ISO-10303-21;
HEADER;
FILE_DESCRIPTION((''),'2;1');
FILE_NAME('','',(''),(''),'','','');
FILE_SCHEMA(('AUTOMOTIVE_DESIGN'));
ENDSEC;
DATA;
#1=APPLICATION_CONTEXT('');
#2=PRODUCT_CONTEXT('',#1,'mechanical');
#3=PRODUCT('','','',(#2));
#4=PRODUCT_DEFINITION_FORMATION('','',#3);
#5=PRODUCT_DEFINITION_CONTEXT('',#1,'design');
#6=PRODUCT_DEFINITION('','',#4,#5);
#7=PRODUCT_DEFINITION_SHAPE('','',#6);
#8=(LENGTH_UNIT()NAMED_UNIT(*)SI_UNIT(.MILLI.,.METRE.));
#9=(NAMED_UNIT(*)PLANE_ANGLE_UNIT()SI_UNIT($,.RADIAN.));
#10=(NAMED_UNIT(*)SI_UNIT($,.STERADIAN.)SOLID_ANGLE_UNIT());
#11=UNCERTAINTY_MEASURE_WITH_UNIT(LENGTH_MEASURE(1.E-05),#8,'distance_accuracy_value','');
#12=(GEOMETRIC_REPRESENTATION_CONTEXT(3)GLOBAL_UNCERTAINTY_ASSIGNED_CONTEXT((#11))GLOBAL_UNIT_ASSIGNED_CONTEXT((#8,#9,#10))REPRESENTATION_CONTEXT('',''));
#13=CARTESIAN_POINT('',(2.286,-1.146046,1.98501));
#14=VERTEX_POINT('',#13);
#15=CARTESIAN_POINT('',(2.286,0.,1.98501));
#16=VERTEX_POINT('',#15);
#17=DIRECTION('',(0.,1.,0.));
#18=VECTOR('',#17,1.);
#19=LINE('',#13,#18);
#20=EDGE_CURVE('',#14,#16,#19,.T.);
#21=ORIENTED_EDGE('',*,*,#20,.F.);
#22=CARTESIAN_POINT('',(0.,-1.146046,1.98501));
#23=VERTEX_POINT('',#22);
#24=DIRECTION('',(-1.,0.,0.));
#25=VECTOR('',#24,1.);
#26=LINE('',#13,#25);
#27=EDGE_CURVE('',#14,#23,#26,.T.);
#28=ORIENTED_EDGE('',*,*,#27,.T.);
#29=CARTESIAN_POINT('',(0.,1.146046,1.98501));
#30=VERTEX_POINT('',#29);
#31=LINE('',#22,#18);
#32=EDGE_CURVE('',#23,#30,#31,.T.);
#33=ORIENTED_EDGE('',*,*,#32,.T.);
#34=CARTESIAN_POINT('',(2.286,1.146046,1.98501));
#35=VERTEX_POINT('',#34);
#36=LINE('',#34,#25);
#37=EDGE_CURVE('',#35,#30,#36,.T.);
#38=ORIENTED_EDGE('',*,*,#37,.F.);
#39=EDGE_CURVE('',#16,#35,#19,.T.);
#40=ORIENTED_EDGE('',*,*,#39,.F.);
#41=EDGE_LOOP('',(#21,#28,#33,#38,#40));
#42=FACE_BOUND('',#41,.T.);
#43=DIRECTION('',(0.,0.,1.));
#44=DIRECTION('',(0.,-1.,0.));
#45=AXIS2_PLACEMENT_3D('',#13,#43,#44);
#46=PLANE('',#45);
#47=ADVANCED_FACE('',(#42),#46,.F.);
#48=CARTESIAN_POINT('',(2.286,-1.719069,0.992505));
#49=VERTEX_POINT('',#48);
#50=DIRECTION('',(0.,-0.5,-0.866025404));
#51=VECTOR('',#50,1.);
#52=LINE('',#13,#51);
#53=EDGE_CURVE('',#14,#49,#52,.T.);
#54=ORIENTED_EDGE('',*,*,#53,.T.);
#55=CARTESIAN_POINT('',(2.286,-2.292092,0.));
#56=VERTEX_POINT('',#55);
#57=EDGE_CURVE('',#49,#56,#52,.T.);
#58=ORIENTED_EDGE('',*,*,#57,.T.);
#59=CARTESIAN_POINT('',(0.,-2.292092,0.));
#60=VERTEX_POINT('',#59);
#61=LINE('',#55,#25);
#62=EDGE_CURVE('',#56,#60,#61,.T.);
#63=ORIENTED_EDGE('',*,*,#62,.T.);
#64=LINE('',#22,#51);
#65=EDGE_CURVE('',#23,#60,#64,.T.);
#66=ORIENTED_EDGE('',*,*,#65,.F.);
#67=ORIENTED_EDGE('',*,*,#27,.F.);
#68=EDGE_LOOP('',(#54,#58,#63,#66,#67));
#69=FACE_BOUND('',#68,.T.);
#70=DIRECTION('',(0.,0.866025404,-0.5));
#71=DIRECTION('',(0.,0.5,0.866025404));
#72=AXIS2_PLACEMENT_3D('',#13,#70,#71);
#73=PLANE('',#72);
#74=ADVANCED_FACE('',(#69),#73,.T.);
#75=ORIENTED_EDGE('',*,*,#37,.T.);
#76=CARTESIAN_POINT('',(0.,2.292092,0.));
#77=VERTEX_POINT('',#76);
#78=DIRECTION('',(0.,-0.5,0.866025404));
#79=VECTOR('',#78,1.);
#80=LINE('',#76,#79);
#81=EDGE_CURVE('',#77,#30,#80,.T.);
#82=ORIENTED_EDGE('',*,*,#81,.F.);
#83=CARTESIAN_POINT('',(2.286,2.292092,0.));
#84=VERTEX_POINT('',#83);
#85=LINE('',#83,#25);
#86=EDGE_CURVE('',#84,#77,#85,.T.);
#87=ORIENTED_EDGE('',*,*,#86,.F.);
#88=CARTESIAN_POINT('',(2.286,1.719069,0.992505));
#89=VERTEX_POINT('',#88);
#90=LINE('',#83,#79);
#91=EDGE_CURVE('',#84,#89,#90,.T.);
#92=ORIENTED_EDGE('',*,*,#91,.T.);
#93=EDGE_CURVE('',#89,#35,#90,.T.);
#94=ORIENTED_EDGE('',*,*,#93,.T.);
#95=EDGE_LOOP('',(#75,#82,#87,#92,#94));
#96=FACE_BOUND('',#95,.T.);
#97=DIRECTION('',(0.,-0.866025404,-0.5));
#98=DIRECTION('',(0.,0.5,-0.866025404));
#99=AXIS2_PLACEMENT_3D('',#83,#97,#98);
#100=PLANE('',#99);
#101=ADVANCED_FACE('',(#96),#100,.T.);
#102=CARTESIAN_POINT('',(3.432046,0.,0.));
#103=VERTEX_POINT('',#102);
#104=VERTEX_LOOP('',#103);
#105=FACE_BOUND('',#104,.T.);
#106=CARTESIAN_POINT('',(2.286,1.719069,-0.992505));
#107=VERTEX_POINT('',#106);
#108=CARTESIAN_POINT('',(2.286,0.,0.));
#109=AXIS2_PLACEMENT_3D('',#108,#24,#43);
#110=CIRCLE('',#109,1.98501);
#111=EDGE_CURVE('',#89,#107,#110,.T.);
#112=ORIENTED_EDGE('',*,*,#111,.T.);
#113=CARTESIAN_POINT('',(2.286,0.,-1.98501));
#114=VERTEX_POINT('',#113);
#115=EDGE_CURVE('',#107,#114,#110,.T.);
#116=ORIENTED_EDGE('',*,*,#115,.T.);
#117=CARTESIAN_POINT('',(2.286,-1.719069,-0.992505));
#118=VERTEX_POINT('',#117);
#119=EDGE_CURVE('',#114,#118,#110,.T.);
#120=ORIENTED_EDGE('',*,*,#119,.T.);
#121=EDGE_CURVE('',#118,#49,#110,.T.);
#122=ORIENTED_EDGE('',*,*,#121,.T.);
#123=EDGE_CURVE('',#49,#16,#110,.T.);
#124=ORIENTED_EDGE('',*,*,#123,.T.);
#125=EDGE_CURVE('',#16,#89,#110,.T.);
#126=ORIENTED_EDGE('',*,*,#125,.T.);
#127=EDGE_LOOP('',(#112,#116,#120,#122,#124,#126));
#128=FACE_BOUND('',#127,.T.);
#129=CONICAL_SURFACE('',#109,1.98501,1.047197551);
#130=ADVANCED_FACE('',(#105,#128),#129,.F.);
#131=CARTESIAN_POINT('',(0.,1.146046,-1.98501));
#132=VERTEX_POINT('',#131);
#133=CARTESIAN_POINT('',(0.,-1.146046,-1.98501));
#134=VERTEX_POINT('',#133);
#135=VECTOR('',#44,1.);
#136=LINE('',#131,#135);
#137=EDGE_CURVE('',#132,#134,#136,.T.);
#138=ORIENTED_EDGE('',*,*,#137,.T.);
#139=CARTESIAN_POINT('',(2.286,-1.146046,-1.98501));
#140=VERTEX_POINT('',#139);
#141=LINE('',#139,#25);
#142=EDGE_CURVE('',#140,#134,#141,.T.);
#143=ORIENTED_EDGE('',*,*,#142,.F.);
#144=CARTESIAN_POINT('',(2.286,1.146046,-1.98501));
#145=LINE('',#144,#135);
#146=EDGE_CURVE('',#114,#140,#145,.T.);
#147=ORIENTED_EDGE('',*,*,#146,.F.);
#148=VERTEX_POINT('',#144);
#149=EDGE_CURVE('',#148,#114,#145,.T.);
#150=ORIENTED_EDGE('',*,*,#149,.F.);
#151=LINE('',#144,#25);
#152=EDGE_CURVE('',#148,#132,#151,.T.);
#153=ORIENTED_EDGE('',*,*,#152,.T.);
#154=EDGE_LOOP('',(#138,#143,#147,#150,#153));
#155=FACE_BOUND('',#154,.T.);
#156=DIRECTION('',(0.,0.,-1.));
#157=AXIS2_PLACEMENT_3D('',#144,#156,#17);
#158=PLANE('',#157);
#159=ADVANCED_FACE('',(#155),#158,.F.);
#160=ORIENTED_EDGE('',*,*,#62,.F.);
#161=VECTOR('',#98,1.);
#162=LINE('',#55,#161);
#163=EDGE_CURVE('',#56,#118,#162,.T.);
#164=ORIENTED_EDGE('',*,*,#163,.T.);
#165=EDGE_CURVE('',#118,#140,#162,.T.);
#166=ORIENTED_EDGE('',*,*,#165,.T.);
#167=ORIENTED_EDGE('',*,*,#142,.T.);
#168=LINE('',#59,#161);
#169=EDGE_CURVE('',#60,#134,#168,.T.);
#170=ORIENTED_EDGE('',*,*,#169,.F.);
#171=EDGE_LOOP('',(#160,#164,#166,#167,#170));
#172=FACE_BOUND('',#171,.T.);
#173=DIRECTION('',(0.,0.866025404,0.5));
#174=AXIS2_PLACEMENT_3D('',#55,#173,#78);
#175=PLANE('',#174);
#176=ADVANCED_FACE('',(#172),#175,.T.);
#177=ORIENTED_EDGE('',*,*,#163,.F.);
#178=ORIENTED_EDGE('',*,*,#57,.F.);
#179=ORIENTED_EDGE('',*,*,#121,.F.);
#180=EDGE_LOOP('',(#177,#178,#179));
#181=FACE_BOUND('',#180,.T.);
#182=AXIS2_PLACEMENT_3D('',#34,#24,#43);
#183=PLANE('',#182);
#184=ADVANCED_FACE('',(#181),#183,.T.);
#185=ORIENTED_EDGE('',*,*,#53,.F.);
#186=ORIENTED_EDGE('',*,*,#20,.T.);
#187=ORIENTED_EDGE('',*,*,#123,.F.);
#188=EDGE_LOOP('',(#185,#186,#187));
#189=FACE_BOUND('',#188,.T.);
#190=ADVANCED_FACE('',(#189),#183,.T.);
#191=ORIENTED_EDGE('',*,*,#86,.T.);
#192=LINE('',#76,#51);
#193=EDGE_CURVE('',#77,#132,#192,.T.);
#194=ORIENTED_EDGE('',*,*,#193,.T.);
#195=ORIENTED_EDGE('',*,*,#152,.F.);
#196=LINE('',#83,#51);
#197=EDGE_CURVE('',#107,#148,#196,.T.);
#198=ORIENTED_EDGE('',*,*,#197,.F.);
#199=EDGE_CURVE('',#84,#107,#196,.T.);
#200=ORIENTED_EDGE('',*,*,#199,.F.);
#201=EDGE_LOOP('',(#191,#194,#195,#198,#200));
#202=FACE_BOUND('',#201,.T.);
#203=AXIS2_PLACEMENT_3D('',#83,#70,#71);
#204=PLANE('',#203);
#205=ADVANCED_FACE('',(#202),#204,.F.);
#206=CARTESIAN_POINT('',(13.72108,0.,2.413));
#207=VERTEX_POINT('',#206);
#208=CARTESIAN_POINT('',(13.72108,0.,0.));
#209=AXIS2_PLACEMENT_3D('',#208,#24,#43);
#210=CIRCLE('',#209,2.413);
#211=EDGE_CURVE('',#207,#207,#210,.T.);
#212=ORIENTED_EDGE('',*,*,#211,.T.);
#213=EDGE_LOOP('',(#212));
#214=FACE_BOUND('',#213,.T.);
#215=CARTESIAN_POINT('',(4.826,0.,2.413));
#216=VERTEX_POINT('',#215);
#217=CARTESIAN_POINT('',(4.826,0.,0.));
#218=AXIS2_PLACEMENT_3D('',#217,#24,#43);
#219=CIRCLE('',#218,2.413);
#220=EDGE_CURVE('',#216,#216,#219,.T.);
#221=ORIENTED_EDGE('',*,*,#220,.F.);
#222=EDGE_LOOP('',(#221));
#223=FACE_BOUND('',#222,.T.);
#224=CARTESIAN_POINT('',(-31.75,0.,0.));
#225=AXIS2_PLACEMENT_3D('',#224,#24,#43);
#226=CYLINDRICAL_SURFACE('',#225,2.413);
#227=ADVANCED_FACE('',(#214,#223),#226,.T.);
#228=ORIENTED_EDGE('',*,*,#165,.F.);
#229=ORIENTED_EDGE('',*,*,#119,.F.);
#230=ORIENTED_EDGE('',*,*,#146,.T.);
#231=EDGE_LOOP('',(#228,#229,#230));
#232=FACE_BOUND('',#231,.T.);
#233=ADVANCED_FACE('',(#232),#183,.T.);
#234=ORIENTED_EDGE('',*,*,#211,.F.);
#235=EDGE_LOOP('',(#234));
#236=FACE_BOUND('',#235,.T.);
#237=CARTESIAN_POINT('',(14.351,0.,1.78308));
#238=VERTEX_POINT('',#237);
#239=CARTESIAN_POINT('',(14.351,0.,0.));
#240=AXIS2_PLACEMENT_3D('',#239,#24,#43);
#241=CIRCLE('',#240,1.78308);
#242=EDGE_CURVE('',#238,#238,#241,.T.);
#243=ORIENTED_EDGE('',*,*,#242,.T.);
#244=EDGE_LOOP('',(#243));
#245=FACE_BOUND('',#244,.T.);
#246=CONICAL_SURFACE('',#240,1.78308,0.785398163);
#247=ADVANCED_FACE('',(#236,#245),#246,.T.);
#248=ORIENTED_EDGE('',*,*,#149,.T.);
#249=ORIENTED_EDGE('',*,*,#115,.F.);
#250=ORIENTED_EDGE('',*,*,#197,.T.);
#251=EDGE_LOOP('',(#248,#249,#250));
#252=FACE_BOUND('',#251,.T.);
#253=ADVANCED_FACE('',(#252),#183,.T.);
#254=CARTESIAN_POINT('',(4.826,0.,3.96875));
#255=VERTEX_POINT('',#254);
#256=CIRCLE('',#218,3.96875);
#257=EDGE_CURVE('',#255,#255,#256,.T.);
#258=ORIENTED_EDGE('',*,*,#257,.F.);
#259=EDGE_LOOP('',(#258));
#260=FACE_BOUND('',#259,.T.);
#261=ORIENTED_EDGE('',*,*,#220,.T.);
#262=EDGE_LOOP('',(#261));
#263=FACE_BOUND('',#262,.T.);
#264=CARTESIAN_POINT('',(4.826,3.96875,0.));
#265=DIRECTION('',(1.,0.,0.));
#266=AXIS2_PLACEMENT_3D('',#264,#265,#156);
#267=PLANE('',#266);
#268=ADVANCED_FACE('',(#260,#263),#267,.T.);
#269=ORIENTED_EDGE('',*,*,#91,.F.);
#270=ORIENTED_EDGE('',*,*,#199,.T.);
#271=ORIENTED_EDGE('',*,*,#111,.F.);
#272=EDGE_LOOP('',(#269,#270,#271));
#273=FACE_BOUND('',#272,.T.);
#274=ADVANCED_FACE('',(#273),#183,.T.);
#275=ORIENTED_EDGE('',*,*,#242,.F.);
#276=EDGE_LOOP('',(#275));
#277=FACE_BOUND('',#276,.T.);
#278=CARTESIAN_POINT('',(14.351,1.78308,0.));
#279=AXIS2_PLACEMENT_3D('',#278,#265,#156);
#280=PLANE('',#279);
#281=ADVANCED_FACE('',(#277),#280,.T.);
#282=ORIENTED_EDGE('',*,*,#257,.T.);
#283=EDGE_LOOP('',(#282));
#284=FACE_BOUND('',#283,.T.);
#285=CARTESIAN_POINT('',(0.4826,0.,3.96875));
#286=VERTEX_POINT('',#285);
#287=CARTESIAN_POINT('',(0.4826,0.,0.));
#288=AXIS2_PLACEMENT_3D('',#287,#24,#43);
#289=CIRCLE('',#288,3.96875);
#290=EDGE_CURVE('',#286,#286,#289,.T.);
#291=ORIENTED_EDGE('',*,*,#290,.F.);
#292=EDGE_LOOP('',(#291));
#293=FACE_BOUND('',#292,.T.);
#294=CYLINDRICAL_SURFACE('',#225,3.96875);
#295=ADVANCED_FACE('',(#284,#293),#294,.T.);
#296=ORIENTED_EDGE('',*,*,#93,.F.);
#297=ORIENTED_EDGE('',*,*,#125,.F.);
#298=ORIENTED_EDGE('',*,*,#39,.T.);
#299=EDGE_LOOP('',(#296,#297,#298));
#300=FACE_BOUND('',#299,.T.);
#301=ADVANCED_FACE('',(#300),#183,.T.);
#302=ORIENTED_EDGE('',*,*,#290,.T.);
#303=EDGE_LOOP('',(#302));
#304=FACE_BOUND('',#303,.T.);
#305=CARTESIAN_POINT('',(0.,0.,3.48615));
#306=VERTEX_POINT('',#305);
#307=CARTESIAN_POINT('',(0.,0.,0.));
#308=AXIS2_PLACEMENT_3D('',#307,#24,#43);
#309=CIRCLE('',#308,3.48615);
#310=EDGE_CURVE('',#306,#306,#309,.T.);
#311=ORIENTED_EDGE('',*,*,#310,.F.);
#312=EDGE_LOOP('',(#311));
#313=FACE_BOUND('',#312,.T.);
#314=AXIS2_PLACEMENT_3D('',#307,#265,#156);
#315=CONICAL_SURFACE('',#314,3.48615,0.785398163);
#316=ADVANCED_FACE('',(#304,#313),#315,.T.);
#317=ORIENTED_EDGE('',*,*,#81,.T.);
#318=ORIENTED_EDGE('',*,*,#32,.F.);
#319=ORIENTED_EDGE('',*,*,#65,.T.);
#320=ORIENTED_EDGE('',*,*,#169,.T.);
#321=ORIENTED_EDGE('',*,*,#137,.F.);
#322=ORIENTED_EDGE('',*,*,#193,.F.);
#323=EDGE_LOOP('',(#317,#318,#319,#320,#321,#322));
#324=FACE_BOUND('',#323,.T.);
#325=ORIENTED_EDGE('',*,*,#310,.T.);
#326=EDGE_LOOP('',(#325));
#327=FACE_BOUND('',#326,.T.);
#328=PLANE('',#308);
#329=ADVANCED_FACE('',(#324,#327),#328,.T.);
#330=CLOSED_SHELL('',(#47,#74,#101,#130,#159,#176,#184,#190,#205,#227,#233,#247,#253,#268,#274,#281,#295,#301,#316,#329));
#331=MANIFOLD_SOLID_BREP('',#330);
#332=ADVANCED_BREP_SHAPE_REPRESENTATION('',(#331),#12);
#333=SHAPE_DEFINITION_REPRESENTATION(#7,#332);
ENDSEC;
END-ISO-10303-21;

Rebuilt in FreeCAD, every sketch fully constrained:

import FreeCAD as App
import Part
import Sketcher
from FreeCAD import Vector
Q = App.Units.Quantity


def add_polygon(sketch, points):
    """Adds a closed chain of lines whose ends are joined by coincident constraints."""
    first, n = sketch.GeometryCount, len(points)
    for a, b in zip(points, points[1:] + points[:1]):
        sketch.addGeometry(Part.LineSegment(App.Vector(*a, 0), App.Vector(*b, 0)), False)
    for i in range(n):
        sketch.addConstraint(Sketcher.Constraint("Coincident", first + i, 2, first + (i + 1) % n, 1))

doc = App.newDocument("Part")
params = doc.addObject("Spreadsheet::Sheet", "Params")
for row, (alias, value) in enumerate([
    ("sketch1_width", "0.565 in"),
    ("sketch1_width2", "0.171 in"),
    ("revolution_angle", "360 deg"),
    ("sketch2_width", "0.09 in"),
    ("groove_angle", "360 deg"),
    ("pocket1_length", "0.09 in"),
], start=1):
    params.set(f"A{row}", alias)
    params.set(f"B{row}", "=" + value)
    params.setAlias(f"B{row}", alias)

body = doc.addObject("PartDesign::Body", "Body")

sketch1 = doc.addObject("Sketcher::SketchObject", "Sketch")
body.addObject(sketch1)
sketch1.AttachmentSupport = (doc.XY_Plane, [""])
sketch1.MapMode = "FlatFace"
add_polygon(sketch1, [(0, 3.5), (0, 0), (14.4, 0), (14.4, 1.8), (13.7, 2.4), (4.8, 2.4), (4.8, 4), (0.5, 4)])
sketch1.addConstraint(Sketcher.Constraint("Vertical", 0))
sketch1.addConstraint(Sketcher.Constraint("Horizontal", 1))
sketch1.addConstraint(Sketcher.Constraint("Vertical", 2))
sketch1.addConstraint(Sketcher.Constraint("Horizontal", 4))
sketch1.addConstraint(Sketcher.Constraint("Vertical", 5))
sketch1.addConstraint(Sketcher.Constraint("Horizontal", 6))
sketch1.addConstraint(Sketcher.Constraint("Coincident", 0, 2, -1, 1))
sketch1.addConstraint(Sketcher.Constraint("Perpendicular", 3, 7))
sketch1.addConstraint(Sketcher.Constraint("Angle", 3, Q("135 deg")))
sketch1.addConstraint(Sketcher.Constraint("DistanceX", 1, 1, 1, 2, Q("0.565 in")))
sketch1.addConstraint(Sketcher.Constraint("DistanceX", 6, 2, 6, 1, Q("0.171 in")))
sketch1.addConstraint(Sketcher.Constraint("DistanceX", -1, 1, 4, 2, Q("0.19 in")))
sketch1.addConstraint(Sketcher.Constraint("DistanceX", 4, 2, 4, 1, Q("0.3502 in")))
sketch1.addConstraint(Sketcher.Constraint("DistanceY", 2, 1, 2, 2, Q("0.0702 in")))
sketch1.addConstraint(Sketcher.Constraint("DistanceY", -1, 1, 5, 2, Q("0.15625 in")))
sketch1.setExpression("Constraints[17]", "Params.sketch1_width")
sketch1.setExpression("Constraints[18]", "Params.sketch1_width2")
revolution = doc.addObject("PartDesign::Revolution", "Revolution")
body.addObject(revolution)
revolution.Profile = sketch1
revolution.ReferenceAxis = (sketch1, ["H_Axis"])
revolution.setExpression("Angle", "Params.revolution_angle")

sketch2 = doc.addObject("Sketcher::SketchObject", "Sketch001")
body.addObject(sketch2)
sketch2.AttachmentSupport = (doc.XY_Plane, [""])
sketch2.MapMode = "FlatFace"
add_polygon(sketch2, [(2.3, 2), (0, 2), (0, 0), (3.4, 0)])
sketch2.addConstraint(Sketcher.Constraint("Horizontal", 0))
sketch2.addConstraint(Sketcher.Constraint("Vertical", 1))
sketch2.addConstraint(Sketcher.Constraint("Horizontal", 2))
sketch2.addConstraint(Sketcher.Constraint("Coincident", 1, 2, -1, 1))
sketch2.addConstraint(Sketcher.Constraint("Angle", 3, Q("120 deg")))
sketch2.addConstraint(Sketcher.Constraint("DistanceX", 0, 2, 0, 1, Q("0.09 in")))
sketch2.addConstraint(Sketcher.Constraint("DistanceY", 1, 2, 1, 1, Q("1.98501 mm")))
sketch2.setExpression("Constraints[9]", "Params.sketch2_width")
groove = doc.addObject("PartDesign::Groove", "Groove")
body.addObject(groove)
groove.Profile = sketch2
groove.ReferenceAxis = (sketch2, ["H_Axis"])
groove.setExpression("Angle", "Params.groove_angle")

sketch3 = doc.addObject("Sketcher::SketchObject", "Sketch002")
body.addObject(sketch3)
sketch3.AttachmentSupport = (doc.YZ_Plane, [""])
sketch3.MapMode = "FlatFace"
add_polygon(sketch3, [(2.3, 0), (1.1, -2), (-1.1, -2), (-2.3, 0), (-1.1, 2), (1.1, 2)])
sketch3.addConstraint(Sketcher.Constraint("Horizontal", 1))
sketch3.addConstraint(Sketcher.Constraint("Horizontal", 4))
sketch3.addConstraint(Sketcher.Constraint("Symmetric", 0, 2, 3, 2, -1, 1))
sketch3.addConstraint(Sketcher.Constraint("Symmetric", 2, 2, 5, 2, -1, 1))
sketch3.addConstraint(Sketcher.Constraint("PointOnObject", 2, 2, -1))
sketch3.addConstraint(Sketcher.Constraint("Parallel", 2, 5))
sketch3.addConstraint(Sketcher.Constraint("Vertical", 1, 2, 3, 2))
sketch3.addConstraint(Sketcher.Constraint("Angle", 0, Q("-120 deg")))
sketch3.addConstraint(Sketcher.Constraint("DistanceY", 1, 2, 3, 2, Q("0.1563 in")))
sketch3.addConstraint(Sketcher.Constraint("DistanceX", 1, 2, 1, 1, Q("2.292092 mm")))
pocket1 = doc.addObject("PartDesign::Pocket", "Pocket")
body.addObject(pocket1)
pocket1.Profile = sketch3
pocket1.setExpression("Length", "Params.pocket1_length")
pocket1.Reversed = True

doc.recompute()
